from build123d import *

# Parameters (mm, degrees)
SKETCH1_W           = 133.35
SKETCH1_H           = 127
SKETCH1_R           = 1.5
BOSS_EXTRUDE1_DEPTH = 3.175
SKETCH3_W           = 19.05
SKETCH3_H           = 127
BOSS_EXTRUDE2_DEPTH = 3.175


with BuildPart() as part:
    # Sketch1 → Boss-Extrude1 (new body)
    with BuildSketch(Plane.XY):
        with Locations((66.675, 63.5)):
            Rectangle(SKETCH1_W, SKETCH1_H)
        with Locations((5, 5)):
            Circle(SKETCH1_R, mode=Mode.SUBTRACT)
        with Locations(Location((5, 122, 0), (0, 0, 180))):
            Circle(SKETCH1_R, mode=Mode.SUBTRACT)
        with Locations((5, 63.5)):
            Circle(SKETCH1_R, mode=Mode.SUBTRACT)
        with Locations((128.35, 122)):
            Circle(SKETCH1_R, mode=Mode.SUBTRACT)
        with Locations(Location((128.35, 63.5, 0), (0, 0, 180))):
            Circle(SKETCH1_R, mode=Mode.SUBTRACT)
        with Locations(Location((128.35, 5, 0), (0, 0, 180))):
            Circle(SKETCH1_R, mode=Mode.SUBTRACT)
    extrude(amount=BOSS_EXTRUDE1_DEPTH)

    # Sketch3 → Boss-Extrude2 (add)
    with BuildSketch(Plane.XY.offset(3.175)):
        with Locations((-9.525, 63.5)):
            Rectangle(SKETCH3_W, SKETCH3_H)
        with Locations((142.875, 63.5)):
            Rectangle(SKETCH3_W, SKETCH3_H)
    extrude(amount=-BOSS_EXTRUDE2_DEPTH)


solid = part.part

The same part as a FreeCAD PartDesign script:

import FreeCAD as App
import Part
import Sketcher
Q = App.Units.Quantity


def add_polygon(sketch, points):
    """Adds a closed chain of lines whose ends are joined by coincident constraints."""
    first, n = sketch.GeometryCount, len(points)
    for a, b in zip(points, points[1:] + points[:1]):
        sketch.addGeometry(Part.LineSegment(App.Vector(*a, 0), App.Vector(*b, 0)), False)
    for i in range(n):
        sketch.addConstraint(Sketcher.Constraint("Coincident", first + i, 2, first + (i + 1) % n, 1))

doc = App.newDocument("Part")
body = doc.addObject("PartDesign::Body", "Body")

# Sketch on XY plane
sketch1 = body.newObject("Sketcher::SketchObject", "Sketch")
sketch1.AttachmentSupport = (doc.getObject("XY_Plane"), [""])
sketch1.MapMode = "FlatFace"
add_polygon(sketch1, [(0, 127), (0, 0), (133.3, 0), (133.3, 127)])  # lines 0-3
sketch1.addGeometry(Part.Circle(App.Vector(5, 5, 0), App.Vector(0, 0, 1), 1.5), False)  # 4
sketch1.addGeometry(Part.Circle(App.Vector(128.3, 5, 0), App.Vector(0, 0, 1), 1.5), False)  # 5
sketch1.addGeometry(Part.Circle(App.Vector(5, 63.5, 0), App.Vector(0, 0, 1), 1.5), False)  # 6
sketch1.addGeometry(Part.Circle(App.Vector(5, 122, 0), App.Vector(0, 0, 1), 1.5), False)  # 7
sketch1.addGeometry(Part.Circle(App.Vector(128.3, 63.5, 0), App.Vector(0, 0, 1), 1.5), False)  # 8
sketch1.addGeometry(Part.Circle(App.Vector(128.3, 122, 0), App.Vector(0, 0, 1), 1.5), False)  # 9
sketch1.addConstraint(Sketcher.Constraint("Vertical", 0))
sketch1.addConstraint(Sketcher.Constraint("Horizontal", 1))
sketch1.addConstraint(Sketcher.Constraint("Vertical", 2))
sketch1.addConstraint(Sketcher.Constraint("Horizontal", 3))
sketch1.addConstraint(Sketcher.Constraint("Coincident", 0, 2, -1, 1))
sketch1.addConstraint(Sketcher.Constraint("Equal", 4, 5))
sketch1.addConstraint(Sketcher.Constraint("Equal", 5, 6))
sketch1.addConstraint(Sketcher.Constraint("Equal", 6, 7))
sketch1.addConstraint(Sketcher.Constraint("Equal", 7, 8))
sketch1.addConstraint(Sketcher.Constraint("Equal", 8, 9))
sketch1.addConstraint(Sketcher.Constraint("Horizontal", 4, 3, 5, 3))
sketch1.addConstraint(Sketcher.Constraint("Horizontal", 6, 3, 8, 3))
sketch1.addConstraint(Sketcher.Constraint("Horizontal", 7, 3, 9, 3))
sketch1.addConstraint(Sketcher.Constraint("Vertical", 4, 3, 6, 3))
sketch1.addConstraint(Sketcher.Constraint("Vertical", 6, 3, 7, 3))
sketch1.addConstraint(Sketcher.Constraint("Vertical", 5, 3, 8, 3))
sketch1.addConstraint(Sketcher.Constraint("Vertical", 8, 3, 9, 3))
sketch1.addConstraint(Sketcher.Constraint("DistanceY", 0, 2, 0, 1, Q("5 in")))
sketch1.addConstraint(Sketcher.Constraint("DistanceX", 1, 1, 1, 2, Q("5.25 in")))
sketch1.addConstraint(Sketcher.Constraint("DistanceY", -1, 1, 6, 3, Q("2.5 in")))
sketch1.addConstraint(Sketcher.Constraint("Diameter", 4, 3.0))
sketch1.addConstraint(Sketcher.Constraint("DistanceX", -1, 1, 4, 3, 5.0))
sketch1.addConstraint(Sketcher.Constraint("DistanceY", -1, 1, 4, 3, 5.0))
sketch1.addConstraint(Sketcher.Constraint("DistanceX", -1, 1, 5, 3, 128.35))
sketch1.addConstraint(Sketcher.Constraint("DistanceY", -1, 1, 7, 3, 122.0))
pad1 = body.newObject("PartDesign::Pad", "Pad")
pad1.Profile = sketch1
pad1.Length = Q("0.125 in")

# Sketch on XY plane
sketch2 = body.newObject("Sketcher::SketchObject", "Sketch001")
sketch2.AttachmentSupport = (doc.getObject("XY_Plane"), [""])
sketch2.MapMode = "FlatFace"
sketch2.AttachmentOffset = App.Placement(App.Vector(0, 0, 0.125 * 25.4), App.Rotation())
add_polygon(sketch2, [(-19, 127), (-19, 0), (0, 0), (0, 127)])  # lines 0-3
add_polygon(sketch2, [(133, 127), (133, 0), (152, 0), (152, 127)])  # lines 4-7
sketch2.addConstraint(Sketcher.Constraint("Vertical", 0))
sketch2.addConstraint(Sketcher.Constraint("Horizontal", 1))
sketch2.addConstraint(Sketcher.Constraint("Vertical", 2))
sketch2.addConstraint(Sketcher.Constraint("Horizontal", 3))
sketch2.addConstraint(Sketcher.Constraint("Vertical", 4))
sketch2.addConstraint(Sketcher.Constraint("Horizontal", 5))
sketch2.addConstraint(Sketcher.Constraint("Vertical", 6))
sketch2.addConstraint(Sketcher.Constraint("Horizontal", 7))
sketch2.addConstraint(Sketcher.Constraint("Coincident", 1, 2, -1, 1))
sketch2.addConstraint(Sketcher.Constraint("PointOnObject", 4, 2, -1))
sketch2.addConstraint(Sketcher.Constraint("Horizontal", 3, 2, 6, 2))
sketch2.addConstraint(Sketcher.Constraint("Equal", 3, 5))
sketch2.addConstraint(Sketcher.Constraint("DistanceY", 0, 2, 0, 1, Q("5 in")))
sketch2.addConstraint(Sketcher.Constraint("DistanceX", -1, 1, 5, 2, Q("6 in")))
sketch2.addConstraint(Sketcher.Constraint("DistanceX", 1, 1, 1, 2, Q("0.75 in")))
pad2 = body.newObject("PartDesign::Pad", "Pad001")
pad2.Profile = sketch2
pad2.Length = Q("0.125 in")
pad2.Reversed = True

doc.recompute()
